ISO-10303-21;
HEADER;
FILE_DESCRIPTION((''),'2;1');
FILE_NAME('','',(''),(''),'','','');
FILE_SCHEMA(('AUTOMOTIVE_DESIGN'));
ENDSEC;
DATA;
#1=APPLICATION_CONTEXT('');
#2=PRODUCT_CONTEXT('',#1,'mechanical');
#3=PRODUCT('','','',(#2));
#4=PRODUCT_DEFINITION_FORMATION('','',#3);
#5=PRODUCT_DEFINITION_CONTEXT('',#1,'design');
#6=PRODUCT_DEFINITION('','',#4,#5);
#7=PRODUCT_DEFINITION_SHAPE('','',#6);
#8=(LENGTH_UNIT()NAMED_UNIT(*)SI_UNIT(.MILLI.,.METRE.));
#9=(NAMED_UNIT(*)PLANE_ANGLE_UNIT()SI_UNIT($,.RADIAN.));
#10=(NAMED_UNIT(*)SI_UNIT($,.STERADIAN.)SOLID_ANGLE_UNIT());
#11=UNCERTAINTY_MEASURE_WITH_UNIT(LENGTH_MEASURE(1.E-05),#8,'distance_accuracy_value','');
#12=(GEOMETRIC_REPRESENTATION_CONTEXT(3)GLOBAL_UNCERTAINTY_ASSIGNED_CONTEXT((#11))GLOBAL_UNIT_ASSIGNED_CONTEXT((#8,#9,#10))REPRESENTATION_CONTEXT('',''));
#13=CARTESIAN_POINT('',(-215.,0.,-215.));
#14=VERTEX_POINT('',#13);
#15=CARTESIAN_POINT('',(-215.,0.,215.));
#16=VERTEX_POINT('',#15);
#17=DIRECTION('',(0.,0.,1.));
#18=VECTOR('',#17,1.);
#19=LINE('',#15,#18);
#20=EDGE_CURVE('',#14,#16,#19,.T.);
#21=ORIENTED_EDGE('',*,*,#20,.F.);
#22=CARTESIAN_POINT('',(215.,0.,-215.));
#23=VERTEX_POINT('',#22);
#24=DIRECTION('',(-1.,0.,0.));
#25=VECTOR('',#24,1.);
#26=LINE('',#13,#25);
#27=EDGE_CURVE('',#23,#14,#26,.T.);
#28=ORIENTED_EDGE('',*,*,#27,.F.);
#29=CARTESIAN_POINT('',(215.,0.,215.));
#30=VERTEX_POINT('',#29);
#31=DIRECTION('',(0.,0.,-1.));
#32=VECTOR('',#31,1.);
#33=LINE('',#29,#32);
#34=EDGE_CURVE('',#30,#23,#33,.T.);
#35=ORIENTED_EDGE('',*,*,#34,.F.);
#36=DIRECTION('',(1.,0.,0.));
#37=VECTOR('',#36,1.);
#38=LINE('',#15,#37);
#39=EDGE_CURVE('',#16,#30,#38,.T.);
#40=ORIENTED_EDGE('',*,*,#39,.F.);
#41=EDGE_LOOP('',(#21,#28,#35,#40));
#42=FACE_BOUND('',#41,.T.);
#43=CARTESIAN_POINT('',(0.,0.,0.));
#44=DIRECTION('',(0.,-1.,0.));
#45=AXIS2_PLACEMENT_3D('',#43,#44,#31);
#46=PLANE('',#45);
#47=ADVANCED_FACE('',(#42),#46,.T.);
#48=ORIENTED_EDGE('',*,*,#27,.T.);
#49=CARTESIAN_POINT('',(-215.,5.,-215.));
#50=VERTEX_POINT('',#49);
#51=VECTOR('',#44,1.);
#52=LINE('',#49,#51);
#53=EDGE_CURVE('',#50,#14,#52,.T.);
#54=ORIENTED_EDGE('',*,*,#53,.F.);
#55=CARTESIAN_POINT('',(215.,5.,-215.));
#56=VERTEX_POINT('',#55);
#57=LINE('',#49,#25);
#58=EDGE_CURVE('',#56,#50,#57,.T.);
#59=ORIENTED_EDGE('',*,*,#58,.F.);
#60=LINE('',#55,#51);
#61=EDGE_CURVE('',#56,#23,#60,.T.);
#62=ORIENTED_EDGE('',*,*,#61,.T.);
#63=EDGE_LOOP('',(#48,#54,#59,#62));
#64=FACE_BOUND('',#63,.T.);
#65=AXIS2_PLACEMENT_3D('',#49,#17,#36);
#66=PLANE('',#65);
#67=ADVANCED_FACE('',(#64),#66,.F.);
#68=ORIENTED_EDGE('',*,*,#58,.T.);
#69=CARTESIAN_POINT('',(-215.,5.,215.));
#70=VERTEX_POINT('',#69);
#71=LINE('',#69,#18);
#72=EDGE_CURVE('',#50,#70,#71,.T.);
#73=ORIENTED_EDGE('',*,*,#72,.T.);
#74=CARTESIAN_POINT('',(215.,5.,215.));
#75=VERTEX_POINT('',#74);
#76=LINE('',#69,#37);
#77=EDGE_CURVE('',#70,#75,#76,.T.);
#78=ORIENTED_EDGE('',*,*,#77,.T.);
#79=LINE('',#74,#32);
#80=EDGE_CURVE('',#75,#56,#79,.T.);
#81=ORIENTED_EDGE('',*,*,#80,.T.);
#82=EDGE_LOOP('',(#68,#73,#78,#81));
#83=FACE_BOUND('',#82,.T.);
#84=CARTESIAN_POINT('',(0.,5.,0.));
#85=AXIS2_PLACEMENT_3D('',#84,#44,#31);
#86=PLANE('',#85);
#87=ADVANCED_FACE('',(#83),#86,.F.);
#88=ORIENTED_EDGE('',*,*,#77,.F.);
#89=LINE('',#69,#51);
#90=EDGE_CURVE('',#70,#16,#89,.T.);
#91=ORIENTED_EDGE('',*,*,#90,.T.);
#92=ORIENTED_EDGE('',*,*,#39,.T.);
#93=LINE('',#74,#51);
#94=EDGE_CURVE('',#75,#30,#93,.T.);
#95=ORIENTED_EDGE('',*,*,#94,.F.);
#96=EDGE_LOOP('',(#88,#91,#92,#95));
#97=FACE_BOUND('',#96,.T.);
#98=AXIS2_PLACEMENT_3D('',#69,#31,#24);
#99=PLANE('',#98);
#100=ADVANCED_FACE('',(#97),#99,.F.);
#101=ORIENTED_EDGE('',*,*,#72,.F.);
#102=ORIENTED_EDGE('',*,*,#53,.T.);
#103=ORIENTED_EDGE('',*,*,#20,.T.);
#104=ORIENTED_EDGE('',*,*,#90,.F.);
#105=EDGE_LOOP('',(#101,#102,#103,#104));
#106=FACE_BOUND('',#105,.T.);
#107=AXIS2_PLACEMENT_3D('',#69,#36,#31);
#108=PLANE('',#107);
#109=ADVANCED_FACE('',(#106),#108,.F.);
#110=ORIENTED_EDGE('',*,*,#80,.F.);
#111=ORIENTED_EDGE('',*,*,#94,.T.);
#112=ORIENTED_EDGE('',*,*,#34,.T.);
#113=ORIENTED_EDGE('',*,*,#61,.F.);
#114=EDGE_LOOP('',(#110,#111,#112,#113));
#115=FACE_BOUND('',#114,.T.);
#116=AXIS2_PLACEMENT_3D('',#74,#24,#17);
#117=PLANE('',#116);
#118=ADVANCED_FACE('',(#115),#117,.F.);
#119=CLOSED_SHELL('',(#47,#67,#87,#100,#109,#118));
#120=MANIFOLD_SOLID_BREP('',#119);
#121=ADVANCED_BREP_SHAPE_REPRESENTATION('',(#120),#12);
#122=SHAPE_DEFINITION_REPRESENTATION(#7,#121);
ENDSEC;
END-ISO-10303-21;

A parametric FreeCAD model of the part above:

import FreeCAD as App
import Part
import Sketcher
from FreeCAD import Vector
Q = App.Units.Quantity

doc = App.newDocument("Part")
body = doc.addObject("PartDesign::Body", "Body")

# Sketch on XZ plane
sketch1 = body.newObject("Sketcher::SketchObject", "Sketch")
sketch1.AttachmentSupport = (doc.getObject("XZ_Plane"), [""])
sketch1.MapMode = "FlatFace"
sketch1.addGeometry(Part.LineSegment(Vector(-215, -215, 0), Vector(-215, 215, 0)), False)
sketch1.addGeometry(Part.LineSegment(Vector(-215, 215, 0), Vector(215, 215, 0)), False)
sketch1.addGeometry(Part.LineSegment(Vector(215, 215, 0), Vector(215, -215, 0)), False)
sketch1.addGeometry(Part.LineSegment(Vector(215, -215, 0), Vector(-215, -215, 0)), False)
sketch1.addConstraint(Sketcher.Constraint("Coincident", 0, 2, 1, 1))
sketch1.addConstraint(Sketcher.Constraint("Coincident", 1, 2, 2, 1))
sketch1.addConstraint(Sketcher.Constraint("Coincident", 2, 2, 3, 1))
sketch1.addConstraint(Sketcher.Constraint("Coincident", 3, 2, 0, 1))
sketch1.addConstraint(Sketcher.Constraint("Vertical", 0))
sketch1.addConstraint(Sketcher.Constraint("Horizontal", 1))
sketch1.addConstraint(Sketcher.Constraint("Vertical", 2))
sketch1.addConstraint(Sketcher.Constraint("Horizontal", 3))
sketch1.addConstraint(Sketcher.Constraint("Symmetric", 0, 2, 2, 2, -1, 1))
sketch1.addConstraint(Sketcher.Constraint("Equal", 3, 0))
sketch1.addConstraint(Sketcher.Constraint("DistanceX", 1, 1, 1, 2, Q("430 mm")))
pad1 = body.newObject("PartDesign::Pad", "Pad")
pad1.Profile = sketch1
pad1.Length = 5
pad1.Reversed = True

doc.recompute()
